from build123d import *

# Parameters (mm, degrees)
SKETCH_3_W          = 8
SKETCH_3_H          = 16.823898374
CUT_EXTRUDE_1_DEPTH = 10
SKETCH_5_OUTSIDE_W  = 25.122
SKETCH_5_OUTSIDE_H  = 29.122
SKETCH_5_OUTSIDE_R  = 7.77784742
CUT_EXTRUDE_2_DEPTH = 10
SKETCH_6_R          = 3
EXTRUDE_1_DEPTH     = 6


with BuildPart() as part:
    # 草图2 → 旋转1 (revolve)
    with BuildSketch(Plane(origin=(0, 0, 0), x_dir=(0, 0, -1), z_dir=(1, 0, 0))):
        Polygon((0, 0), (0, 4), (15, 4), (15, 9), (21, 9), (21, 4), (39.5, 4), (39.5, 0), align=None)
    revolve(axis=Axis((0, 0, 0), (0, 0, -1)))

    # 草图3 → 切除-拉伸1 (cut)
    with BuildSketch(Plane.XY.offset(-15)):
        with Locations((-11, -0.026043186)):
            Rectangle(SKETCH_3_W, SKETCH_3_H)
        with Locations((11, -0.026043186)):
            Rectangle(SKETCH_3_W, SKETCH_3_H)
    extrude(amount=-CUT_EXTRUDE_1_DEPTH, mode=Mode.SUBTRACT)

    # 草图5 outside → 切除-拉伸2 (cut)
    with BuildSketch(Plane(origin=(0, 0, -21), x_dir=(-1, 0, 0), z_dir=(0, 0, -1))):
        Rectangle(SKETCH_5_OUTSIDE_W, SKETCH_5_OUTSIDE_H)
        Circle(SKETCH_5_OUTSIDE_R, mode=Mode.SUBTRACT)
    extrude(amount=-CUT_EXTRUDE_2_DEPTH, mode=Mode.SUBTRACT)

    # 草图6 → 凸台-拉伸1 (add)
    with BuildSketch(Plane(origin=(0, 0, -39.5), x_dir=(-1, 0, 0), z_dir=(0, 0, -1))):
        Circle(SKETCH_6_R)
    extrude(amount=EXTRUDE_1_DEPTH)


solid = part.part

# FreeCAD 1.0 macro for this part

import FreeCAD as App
import Part
import Sketcher

V = App.Vector

doc = App.newDocument("Part")
body = doc.addObject("PartDesign::Body", "Body")

# Sketch on YZ plane
sketch1 = body.newObject("Sketcher::SketchObject", "Sketch")
sketch1.AttachmentSupport = (doc.getObject("YZ_Plane"), [""])
sketch1.MapMode = "FlatFace"
sketch1.addGeometry([
    Part.LineSegment(V(4, 0, 0), V(0, 0, 0)),  # 0
    Part.LineSegment(V(0, 0, 0), V(0, -39.5, 0)),  # 1
    Part.LineSegment(V(0, -39.5, 0), V(4, -39.5, 0)),  # 2
    Part.LineSegment(V(4, -39.5, 0), V(4, -21, 0)),  # 3
    Part.LineSegment(V(4, -21, 0), V(9, -21, 0)),  # 4
    Part.LineSegment(V(9, -21, 0), V(9, -15, 0)),  # 5
    Part.LineSegment(V(9, -15, 0), V(4, -15, 0)),  # 6
    Part.LineSegment(V(4, -15, 0), V(4, 0, 0)),  # 7
], False)
sketch1.addConstraint([
    Sketcher.Constraint("Coincident", 0, 2, 1, 1),
    Sketcher.Constraint("Coincident", 1, 2, 2, 1),
    Sketcher.Constraint("Coincident", 2, 2, 3, 1),
    Sketcher.Constraint("Coincident", 3, 2, 4, 1),
    Sketcher.Constraint("Coincident", 4, 2, 5, 1),
    Sketcher.Constraint("Coincident", 5, 2, 6, 1),
    Sketcher.Constraint("Coincident", 6, 2, 7, 1),
    Sketcher.Constraint("Coincident", 7, 2, 0, 1),
    Sketcher.Constraint("Horizontal", 0),
    Sketcher.Constraint("Vertical", 1),
    Sketcher.Constraint("Horizontal", 2),
    Sketcher.Constraint("Vertical", 3),
    Sketcher.Constraint("Horizontal", 4),
    Sketcher.Constraint("Vertical", 5),
    Sketcher.Constraint("Horizontal", 6),
    Sketcher.Constraint("Vertical", 7),
    Sketcher.Constraint("Coincident", 0, 2, -1, 1),
    Sketcher.Constraint("Vertical", 3, 2, 6, 2),
    Sketcher.Constraint("DistanceX", 0, 2, 0, 1, 4.0),
    Sketcher.Constraint("DistanceX", 4, 1, 4, 2, 5.0),
    Sketcher.Constraint("DistanceY", 5, 1, 5, 2, 6.0),
    Sketcher.Constraint("DistanceY", 7, 1, 7, 2, 15.0),
    Sketcher.Constraint("DistanceY", 1, 2, 1, 1, 39.5),
])
revolution = body.newObject("PartDesign::Revolution", "Revolution")
revolution.Profile = sketch1
revolution.ReferenceAxis = (sketch1, ["V_Axis"])
revolution.Angle = 360

# Sketch on XY plane
sketch2 = body.newObject("Sketcher::SketchObject", "Sketch001")
sketch2.AttachmentSupport = (doc.getObject("XY_Plane"), [""])
sketch2.MapMode = "FlatFace"
sketch2.AttachmentOffset = App.Placement(V(0, 0, -15), App.Rotation())
sketch2.addGeometry([
    Part.LineSegment(V(-15, 8.385906, 0), V(-15, -8.437992, 0)),  # 0
    Part.LineSegment(V(-15, -8.437992, 0), V(-7, -8.437992, 0)),  # 1
    Part.LineSegment(V(-7, -8.437992, 0), V(-7, 8.385906, 0)),  # 2
    Part.LineSegment(V(-7, 8.385906, 0), V(-15, 8.385906, 0)),  # 3
    Part.LineSegment(V(7, 8.385906, 0), V(7, -8.437992, 0)),  # 4
    Part.LineSegment(V(7, -8.437992, 0), V(15, -8.437992, 0)),  # 5
    Part.LineSegment(V(15, -8.437992, 0), V(15, 8.385906, 0)),  # 6
    Part.LineSegment(V(15, 8.385906, 0), V(7, 8.385906, 0)),  # 7
], False)
sketch2.addConstraint([
    Sketcher.Constraint("Coincident", 0, 2, 1, 1),
    Sketcher.Constraint("Coincident", 1, 2, 2, 1),
    Sketcher.Constraint("Coincident", 2, 2, 3, 1),
    Sketcher.Constraint("Coincident", 3, 2, 0, 1),
    Sketcher.Constraint("Coincident", 4, 2, 5, 1),
    Sketcher.Constraint("Coincident", 5, 2, 6, 1),
    Sketcher.Constraint("Coincident", 6, 2, 7, 1),
    Sketcher.Constraint("Coincident", 7, 2, 4, 1),
    Sketcher.Constraint("Vertical", 0),
    Sketcher.Constraint("Horizontal", 1),
    Sketcher.Constraint("Vertical", 2),
    Sketcher.Constraint("Horizontal", 3),
    Sketcher.Constraint("Vertical", 4),
    Sketcher.Constraint("Horizontal", 5),
    Sketcher.Constraint("Vertical", 6),
    Sketcher.Constraint("Horizontal", 7),
    Sketcher.Constraint("Symmetric", 1, 2, 4, 2, -2),
    Sketcher.Constraint("Symmetric", 3, 2, 6, 2, -2),
    Sketcher.Constraint("DistanceX", 1, 1, 1, 2, 8.0),
    Sketcher.Constraint("DistanceX", 0, 2, -1, 1, 15.0),
    Sketcher.Constraint("DistanceY", 0, 2, 0, 1, 16.823898),
    Sketcher.Constraint("DistanceY", 0, 2, -1, 1, 8.437992),
])
pocket1 = body.newObject("PartDesign::Pocket", "Pocket")
pocket1.Profile = sketch2
pocket1.Length = 10

# Sketch on XY plane
sketch3 = body.newObject("Sketcher::SketchObject", "Sketch002")
sketch3.AttachmentSupport = (doc.getObject("XY_Plane"), [""])
sketch3.MapMode = "FlatFace"
sketch3.AttachmentOffset = App.Placement(V(0, 0, -21), App.Rotation())
sketch3.addGeometry([
    Part.LineSegment(V(12.561, 14.561, 0), V(12.561, -14.561, 0)),  # 0
    Part.LineSegment(V(12.561, -14.561, 0), V(-12.561, -14.561, 0)),  # 1
    Part.LineSegment(V(-12.561, -14.561, 0), V(-12.561, 14.561, 0)),  # 2
    Part.LineSegment(V(-12.561, 14.561, 0), V(12.561, 14.561, 0)),  # 3
    Part.Circle(V(0, 0, 0), V(0, 0, 1), 7.777847),  # 4
], False)
sketch3.addConstraint([
    Sketcher.Constraint("Coincident", 0, 2, 1, 1),
    Sketcher.Constraint("Coincident", 1, 2, 2, 1),
    Sketcher.Constraint("Coincident", 2, 2, 3, 1),
    Sketcher.Constraint("Coincident", 3, 2, 0, 1),
    Sketcher.Constraint("Vertical", 0),
    Sketcher.Constraint("Horizontal", 1),
    Sketcher.Constraint("Vertical", 2),
    Sketcher.Constraint("Horizontal", 3),
    Sketcher.Constraint("Coincident", 4, 3, -1, 1),
    Sketcher.Constraint("Symmetric", 0, 2, 2, 2, -1, 1),
    Sketcher.Constraint("DistanceX", 1, 2, 1, 1, 25.122),
    Sketcher.Constraint("DistanceY", 0, 2, 0, 1, 29.122),
    Sketcher.Constraint("Diameter", 4, 15.555695),
])
pocket2 = body.newObject("PartDesign::Pocket", "Pocket001")
pocket2.Profile = sketch3
pocket2.Length = 10
pocket2.Reversed = True

# Sketch on XY plane
sketch4 = body.newObject("Sketcher::SketchObject", "Sketch003")
sketch4.AttachmentSupport = (doc.getObject("XY_Plane"), [""])
sketch4.MapMode = "FlatFace"
sketch4.AttachmentOffset = App.Placement(V(0, 0, -39.5), App.Rotation())
sketch4.addGeometry(Part.Circle(V(0, 0, 0), V(0, 0, 1), 3), False)
sketch4.addConstraint([
    Sketcher.Constraint("Coincident", 0, 3, -1, 1),
    Sketcher.Constraint("Diameter", 0, 6.0),
])
pad1 = body.newObject("PartDesign::Pad", "Pad")
pad1.Profile = sketch4
pad1.Length = 6
pad1.Reversed = True

doc.recompute()
